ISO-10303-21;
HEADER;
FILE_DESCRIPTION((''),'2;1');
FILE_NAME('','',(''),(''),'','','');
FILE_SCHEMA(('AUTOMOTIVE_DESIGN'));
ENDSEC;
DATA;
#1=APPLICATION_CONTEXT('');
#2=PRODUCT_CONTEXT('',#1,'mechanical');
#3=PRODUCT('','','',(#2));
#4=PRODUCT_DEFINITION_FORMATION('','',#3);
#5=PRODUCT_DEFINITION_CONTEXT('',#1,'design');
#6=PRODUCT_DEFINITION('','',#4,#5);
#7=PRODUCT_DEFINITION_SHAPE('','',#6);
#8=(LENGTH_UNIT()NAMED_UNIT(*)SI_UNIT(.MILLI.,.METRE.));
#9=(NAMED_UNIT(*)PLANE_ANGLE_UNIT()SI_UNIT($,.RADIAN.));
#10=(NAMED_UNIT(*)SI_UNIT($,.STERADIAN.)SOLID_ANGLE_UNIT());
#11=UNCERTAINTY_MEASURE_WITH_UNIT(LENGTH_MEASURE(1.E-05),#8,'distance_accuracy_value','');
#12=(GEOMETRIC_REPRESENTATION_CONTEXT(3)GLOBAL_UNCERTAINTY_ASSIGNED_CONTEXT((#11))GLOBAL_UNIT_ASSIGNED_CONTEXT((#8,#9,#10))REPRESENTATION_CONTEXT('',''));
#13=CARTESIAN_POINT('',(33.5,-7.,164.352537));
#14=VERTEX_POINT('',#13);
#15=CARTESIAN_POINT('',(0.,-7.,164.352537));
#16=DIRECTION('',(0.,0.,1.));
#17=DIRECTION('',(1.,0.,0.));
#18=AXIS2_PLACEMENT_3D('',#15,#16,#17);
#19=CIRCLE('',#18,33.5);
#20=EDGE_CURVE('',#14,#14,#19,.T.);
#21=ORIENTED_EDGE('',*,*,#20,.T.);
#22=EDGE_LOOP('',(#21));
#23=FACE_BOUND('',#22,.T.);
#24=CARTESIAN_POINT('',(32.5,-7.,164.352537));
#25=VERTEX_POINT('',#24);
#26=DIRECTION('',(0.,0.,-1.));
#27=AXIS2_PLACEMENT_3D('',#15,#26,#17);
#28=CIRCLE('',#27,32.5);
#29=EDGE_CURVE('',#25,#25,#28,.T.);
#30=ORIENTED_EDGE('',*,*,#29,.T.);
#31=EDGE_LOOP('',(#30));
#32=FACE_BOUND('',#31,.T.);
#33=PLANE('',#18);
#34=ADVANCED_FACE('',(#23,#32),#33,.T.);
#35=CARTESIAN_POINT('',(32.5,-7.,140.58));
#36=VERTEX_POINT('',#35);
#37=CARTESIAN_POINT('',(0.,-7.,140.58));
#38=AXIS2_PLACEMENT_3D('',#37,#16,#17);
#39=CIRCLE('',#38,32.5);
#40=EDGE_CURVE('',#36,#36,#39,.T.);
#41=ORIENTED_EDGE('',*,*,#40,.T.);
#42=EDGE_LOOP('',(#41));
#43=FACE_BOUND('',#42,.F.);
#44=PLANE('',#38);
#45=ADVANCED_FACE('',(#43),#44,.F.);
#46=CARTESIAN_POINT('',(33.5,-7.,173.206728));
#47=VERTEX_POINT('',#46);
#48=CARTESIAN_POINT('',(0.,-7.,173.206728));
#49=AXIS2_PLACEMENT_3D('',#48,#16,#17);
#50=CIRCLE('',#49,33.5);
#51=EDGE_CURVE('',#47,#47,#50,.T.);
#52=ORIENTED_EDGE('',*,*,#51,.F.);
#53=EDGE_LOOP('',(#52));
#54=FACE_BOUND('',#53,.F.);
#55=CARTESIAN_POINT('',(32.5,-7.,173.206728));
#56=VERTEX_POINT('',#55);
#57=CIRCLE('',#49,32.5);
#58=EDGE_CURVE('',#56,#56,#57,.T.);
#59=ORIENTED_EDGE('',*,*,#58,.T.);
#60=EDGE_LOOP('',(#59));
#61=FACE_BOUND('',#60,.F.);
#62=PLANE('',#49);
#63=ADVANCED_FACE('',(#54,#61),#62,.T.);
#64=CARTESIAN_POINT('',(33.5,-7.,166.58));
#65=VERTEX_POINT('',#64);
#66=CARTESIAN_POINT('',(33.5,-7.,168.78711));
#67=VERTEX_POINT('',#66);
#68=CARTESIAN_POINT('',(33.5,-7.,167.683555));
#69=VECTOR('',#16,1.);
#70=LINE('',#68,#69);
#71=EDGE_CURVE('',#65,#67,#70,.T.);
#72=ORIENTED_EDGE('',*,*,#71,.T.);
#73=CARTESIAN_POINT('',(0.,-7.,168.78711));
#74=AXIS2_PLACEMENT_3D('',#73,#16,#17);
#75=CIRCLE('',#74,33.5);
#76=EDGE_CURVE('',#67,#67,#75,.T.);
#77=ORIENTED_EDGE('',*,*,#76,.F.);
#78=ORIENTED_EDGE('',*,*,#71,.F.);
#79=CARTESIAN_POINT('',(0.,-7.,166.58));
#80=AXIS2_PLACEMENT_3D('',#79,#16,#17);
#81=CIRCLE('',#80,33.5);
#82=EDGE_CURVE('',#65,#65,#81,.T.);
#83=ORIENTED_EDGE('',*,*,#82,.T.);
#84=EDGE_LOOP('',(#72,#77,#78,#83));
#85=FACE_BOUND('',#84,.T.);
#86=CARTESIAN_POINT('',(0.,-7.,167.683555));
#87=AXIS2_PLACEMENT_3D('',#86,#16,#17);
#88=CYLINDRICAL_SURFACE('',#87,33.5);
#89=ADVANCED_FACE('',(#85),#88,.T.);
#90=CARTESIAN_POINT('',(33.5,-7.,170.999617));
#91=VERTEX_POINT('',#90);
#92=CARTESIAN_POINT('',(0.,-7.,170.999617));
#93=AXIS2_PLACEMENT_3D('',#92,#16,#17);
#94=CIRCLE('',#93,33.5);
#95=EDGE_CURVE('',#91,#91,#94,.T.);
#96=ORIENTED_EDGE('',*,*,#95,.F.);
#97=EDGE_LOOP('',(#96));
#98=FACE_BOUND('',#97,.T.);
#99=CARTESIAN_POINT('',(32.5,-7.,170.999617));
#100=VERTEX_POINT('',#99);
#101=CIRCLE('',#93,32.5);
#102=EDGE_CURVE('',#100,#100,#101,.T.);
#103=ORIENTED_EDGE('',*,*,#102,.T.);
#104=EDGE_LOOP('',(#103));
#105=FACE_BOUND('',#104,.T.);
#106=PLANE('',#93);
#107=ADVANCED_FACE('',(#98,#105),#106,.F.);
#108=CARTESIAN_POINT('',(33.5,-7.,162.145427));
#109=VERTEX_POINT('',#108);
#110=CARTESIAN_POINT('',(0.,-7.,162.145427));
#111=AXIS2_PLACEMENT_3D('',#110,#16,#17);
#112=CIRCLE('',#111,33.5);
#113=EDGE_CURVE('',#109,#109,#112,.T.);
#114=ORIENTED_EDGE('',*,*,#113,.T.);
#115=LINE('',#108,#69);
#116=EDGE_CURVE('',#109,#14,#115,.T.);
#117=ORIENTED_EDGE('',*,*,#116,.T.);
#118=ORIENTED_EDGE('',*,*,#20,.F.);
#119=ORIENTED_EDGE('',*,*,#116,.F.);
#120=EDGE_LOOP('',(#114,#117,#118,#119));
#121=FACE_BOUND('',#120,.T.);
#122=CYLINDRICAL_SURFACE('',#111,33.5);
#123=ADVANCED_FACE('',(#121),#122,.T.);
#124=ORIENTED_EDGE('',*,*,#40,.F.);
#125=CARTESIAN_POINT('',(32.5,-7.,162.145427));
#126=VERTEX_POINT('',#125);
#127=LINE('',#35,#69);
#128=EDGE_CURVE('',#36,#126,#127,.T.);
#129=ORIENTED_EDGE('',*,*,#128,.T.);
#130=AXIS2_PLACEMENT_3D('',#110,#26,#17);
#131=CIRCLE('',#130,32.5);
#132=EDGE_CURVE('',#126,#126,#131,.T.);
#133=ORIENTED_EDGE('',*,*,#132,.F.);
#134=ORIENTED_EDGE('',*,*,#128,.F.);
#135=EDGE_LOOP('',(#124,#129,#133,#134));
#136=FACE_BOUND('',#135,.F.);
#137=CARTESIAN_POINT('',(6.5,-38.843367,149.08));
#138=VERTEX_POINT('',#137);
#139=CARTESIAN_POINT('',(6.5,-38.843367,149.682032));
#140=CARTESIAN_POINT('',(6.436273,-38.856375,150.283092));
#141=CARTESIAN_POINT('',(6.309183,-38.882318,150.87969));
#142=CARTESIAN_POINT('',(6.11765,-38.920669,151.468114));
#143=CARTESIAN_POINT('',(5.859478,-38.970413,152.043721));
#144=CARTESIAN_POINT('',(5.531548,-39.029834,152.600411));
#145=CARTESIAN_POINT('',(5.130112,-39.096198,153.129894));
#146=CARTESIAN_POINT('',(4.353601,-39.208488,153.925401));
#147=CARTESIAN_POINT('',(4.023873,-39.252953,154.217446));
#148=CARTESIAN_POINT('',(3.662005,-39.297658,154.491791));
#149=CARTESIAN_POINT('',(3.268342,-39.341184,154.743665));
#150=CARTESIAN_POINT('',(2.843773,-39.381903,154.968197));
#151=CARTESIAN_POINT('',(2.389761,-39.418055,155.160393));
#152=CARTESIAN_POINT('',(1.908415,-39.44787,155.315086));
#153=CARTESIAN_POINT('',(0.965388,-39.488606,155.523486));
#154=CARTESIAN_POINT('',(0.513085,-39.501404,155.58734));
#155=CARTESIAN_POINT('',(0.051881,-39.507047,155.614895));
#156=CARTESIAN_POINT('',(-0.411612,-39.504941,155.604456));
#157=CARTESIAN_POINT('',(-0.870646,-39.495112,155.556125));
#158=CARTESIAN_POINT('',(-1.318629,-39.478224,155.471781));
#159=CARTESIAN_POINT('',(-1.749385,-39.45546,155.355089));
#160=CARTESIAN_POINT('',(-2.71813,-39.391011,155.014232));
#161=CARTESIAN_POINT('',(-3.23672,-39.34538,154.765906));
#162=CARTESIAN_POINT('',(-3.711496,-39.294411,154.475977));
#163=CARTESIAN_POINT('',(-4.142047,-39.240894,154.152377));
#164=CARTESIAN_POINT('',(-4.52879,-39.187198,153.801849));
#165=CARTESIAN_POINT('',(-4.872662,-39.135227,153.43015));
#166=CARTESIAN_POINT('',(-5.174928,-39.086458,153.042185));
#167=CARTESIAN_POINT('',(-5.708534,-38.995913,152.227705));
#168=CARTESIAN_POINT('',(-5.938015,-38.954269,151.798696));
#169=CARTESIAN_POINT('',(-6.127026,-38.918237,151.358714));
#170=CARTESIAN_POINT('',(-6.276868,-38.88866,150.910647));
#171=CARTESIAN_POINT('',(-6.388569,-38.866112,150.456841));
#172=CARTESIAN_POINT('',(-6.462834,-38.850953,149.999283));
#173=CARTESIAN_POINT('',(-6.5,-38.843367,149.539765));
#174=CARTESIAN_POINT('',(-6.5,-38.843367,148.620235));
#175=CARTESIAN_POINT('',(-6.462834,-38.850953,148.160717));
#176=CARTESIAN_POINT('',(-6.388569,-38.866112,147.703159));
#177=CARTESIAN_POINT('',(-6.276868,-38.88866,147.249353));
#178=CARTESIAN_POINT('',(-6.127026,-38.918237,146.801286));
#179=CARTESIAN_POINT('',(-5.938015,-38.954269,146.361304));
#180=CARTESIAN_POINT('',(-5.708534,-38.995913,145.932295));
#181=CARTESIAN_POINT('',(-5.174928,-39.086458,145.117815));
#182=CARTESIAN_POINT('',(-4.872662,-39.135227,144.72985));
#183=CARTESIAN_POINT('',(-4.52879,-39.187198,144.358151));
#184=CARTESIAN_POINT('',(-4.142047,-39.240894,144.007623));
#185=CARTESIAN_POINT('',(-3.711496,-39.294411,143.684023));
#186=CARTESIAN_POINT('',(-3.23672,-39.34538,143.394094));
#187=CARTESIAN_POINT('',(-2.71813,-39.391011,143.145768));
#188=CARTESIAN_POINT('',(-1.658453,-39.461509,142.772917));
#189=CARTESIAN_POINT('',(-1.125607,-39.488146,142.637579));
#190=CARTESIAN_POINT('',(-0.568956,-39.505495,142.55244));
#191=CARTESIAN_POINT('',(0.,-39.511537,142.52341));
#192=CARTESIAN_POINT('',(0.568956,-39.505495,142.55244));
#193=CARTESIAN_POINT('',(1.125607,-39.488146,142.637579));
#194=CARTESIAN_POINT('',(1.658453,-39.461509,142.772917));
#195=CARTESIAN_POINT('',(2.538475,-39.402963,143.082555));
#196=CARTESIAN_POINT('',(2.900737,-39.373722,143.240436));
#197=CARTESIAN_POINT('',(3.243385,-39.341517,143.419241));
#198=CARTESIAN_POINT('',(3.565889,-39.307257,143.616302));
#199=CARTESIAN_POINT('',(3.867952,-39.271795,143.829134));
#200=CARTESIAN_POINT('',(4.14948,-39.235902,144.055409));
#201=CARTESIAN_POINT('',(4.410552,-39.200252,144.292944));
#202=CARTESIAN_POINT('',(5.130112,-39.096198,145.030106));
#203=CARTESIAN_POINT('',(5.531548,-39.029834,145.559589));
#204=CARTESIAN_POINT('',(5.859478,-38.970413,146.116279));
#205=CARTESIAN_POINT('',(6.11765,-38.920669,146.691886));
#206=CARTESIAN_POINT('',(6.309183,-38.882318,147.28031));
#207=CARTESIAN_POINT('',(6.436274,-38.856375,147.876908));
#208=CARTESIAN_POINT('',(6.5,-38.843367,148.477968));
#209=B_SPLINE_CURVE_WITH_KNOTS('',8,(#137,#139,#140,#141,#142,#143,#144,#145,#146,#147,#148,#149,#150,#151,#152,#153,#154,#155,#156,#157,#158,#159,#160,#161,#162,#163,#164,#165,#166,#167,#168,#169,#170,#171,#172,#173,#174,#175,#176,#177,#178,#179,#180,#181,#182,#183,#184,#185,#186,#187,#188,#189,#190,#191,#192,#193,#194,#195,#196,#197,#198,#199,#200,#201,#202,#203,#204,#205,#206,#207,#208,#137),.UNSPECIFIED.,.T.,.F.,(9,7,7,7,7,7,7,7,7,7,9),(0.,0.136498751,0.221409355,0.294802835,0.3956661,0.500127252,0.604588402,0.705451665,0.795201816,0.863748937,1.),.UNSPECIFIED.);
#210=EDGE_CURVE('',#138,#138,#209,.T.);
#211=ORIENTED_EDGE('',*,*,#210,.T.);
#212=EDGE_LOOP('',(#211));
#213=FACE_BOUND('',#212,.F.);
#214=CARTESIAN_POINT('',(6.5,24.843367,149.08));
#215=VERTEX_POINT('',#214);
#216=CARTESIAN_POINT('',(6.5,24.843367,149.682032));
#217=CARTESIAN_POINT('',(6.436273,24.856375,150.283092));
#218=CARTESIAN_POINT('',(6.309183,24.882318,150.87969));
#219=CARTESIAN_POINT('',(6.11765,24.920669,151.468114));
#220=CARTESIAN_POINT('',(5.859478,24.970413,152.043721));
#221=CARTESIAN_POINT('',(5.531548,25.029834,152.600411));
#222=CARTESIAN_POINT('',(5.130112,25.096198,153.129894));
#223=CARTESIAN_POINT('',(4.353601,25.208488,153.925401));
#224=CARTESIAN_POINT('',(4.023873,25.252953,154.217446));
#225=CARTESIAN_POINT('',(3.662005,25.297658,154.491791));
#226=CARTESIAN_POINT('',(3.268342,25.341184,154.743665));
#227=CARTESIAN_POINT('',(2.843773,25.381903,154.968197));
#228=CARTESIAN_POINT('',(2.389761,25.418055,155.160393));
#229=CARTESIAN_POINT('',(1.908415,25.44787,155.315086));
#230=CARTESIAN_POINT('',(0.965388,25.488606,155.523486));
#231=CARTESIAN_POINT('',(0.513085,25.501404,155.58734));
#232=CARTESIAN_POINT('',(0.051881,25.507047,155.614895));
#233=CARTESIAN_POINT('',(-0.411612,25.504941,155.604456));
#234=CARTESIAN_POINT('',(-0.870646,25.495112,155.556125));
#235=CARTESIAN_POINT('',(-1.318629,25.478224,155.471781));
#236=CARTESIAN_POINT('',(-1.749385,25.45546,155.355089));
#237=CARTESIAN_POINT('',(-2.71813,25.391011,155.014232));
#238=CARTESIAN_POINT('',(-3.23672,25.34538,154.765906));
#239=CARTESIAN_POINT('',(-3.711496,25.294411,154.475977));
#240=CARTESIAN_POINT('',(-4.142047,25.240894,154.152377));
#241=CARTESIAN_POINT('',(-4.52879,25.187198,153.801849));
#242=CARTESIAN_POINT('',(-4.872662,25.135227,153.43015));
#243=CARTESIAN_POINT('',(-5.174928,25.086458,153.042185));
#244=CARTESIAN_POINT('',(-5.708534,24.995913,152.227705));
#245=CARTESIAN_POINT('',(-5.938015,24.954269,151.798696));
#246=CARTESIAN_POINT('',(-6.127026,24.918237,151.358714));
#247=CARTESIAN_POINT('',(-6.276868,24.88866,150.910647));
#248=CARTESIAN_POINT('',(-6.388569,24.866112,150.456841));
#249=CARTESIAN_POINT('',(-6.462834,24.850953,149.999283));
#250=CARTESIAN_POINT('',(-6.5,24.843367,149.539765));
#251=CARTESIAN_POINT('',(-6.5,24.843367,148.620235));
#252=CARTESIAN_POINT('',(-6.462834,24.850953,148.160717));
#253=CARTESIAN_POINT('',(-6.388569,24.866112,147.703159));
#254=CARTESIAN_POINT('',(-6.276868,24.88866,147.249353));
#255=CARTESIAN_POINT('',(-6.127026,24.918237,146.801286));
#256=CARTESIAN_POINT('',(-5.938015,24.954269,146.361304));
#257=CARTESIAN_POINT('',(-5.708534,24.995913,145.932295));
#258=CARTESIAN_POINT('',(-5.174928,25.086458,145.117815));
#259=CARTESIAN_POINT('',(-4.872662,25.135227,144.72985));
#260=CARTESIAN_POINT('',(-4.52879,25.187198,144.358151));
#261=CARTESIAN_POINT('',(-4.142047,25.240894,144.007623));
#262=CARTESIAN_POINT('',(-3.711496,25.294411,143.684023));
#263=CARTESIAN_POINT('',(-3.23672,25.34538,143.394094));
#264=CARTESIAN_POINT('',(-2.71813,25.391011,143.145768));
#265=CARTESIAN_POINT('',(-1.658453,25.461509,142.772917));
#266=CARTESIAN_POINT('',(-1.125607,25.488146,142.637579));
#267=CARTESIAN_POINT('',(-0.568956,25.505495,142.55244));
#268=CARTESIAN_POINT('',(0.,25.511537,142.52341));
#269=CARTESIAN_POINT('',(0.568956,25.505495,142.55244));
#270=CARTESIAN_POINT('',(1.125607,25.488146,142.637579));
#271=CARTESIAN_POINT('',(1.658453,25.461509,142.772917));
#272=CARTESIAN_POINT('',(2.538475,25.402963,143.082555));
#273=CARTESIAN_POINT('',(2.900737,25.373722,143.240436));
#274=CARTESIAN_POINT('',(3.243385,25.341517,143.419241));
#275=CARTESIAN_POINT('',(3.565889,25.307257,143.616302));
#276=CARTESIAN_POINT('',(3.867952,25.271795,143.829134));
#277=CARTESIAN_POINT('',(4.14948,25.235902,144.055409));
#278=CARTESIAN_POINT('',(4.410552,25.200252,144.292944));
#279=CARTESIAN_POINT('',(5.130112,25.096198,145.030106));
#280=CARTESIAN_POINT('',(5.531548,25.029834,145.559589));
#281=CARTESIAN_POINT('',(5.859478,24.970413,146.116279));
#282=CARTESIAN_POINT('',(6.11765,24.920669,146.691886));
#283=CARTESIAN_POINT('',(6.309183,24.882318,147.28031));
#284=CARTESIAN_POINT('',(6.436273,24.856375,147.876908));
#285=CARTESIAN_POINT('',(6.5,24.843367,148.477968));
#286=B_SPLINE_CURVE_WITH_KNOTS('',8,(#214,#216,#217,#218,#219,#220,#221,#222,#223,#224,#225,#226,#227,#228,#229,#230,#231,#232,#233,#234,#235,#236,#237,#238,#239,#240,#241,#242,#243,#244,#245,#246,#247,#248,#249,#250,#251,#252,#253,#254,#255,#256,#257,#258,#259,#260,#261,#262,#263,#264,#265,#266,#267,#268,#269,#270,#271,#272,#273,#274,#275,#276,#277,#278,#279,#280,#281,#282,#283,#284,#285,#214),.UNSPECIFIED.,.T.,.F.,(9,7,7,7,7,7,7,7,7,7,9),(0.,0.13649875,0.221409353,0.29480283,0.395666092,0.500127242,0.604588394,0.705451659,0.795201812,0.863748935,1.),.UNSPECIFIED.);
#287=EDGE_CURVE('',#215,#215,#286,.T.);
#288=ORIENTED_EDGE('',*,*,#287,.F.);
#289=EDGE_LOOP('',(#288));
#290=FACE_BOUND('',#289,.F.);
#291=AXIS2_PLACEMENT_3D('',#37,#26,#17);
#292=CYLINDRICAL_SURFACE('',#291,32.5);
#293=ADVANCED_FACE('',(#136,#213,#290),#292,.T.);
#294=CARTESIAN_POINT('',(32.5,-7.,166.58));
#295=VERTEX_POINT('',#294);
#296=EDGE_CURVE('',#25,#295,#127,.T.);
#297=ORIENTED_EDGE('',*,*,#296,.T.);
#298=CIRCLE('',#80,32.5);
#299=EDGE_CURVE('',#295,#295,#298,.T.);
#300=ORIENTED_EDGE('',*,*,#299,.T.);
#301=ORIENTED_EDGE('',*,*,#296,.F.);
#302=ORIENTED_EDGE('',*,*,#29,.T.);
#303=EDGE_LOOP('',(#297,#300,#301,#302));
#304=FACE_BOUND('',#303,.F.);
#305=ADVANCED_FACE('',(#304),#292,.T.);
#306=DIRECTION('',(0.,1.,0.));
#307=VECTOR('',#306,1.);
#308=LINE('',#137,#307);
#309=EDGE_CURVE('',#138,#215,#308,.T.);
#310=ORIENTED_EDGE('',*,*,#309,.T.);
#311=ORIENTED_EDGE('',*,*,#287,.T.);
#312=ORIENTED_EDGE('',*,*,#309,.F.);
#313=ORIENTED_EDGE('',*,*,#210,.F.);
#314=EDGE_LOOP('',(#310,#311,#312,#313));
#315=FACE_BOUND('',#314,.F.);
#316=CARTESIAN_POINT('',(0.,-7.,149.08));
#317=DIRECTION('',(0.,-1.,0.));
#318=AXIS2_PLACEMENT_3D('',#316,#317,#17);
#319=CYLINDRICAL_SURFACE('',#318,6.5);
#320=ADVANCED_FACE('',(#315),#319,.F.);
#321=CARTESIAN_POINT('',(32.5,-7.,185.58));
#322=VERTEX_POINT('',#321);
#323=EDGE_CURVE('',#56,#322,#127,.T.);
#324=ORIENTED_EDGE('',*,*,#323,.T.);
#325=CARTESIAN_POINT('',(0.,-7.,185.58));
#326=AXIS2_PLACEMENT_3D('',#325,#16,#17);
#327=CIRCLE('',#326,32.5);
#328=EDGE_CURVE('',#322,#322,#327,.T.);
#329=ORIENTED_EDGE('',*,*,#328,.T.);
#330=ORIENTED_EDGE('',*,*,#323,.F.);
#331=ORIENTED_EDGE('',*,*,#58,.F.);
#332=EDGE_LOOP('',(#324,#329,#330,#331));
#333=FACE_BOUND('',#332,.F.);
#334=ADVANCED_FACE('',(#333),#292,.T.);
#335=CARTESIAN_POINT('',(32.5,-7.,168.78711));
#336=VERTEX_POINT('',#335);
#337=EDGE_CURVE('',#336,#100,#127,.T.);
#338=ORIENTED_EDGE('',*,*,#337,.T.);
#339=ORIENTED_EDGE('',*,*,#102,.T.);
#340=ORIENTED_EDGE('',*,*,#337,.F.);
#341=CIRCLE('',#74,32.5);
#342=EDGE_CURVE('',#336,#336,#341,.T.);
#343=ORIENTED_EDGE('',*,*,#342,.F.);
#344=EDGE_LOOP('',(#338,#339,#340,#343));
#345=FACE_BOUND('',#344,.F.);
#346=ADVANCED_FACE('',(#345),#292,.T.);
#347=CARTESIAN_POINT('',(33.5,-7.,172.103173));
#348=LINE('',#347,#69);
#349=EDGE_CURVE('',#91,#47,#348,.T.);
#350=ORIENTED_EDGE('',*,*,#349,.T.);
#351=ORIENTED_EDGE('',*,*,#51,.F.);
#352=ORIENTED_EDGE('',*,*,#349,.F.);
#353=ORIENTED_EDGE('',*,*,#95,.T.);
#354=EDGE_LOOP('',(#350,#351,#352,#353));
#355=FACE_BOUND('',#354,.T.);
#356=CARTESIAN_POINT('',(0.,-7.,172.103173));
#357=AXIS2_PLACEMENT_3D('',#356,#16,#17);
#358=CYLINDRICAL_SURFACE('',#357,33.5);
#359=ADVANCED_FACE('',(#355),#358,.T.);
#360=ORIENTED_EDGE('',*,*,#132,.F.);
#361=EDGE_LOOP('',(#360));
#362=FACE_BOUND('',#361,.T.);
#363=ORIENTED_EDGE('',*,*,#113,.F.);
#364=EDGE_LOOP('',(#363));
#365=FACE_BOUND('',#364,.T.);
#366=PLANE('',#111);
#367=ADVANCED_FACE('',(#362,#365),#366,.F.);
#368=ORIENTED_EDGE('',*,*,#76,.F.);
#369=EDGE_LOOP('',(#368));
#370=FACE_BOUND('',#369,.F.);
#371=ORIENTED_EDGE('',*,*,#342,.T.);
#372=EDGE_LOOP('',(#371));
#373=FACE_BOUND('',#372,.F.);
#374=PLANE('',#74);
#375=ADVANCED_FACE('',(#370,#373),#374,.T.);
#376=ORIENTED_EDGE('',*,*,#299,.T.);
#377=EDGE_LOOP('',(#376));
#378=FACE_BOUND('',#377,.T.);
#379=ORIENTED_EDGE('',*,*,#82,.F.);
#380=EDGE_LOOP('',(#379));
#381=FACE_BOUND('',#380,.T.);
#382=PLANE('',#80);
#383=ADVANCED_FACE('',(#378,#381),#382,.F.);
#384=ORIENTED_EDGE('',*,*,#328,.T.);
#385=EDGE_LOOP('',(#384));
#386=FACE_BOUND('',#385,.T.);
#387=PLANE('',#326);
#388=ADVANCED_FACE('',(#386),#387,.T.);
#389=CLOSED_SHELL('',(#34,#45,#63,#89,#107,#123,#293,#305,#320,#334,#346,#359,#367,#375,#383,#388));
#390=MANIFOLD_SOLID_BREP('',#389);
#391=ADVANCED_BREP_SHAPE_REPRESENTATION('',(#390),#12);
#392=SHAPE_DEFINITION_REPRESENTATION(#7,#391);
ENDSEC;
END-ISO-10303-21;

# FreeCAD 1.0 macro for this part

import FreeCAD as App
import Part
import Sketcher
from FreeCAD import Vector
Q = App.Units.Quantity


def add_polygon(sketch, points):
    """Adds a closed chain of lines whose ends are joined by coincident constraints."""
    first, n = sketch.GeometryCount, len(points)
    for a, b in zip(points, points[1:] + points[:1]):
        sketch.addGeometry(Part.LineSegment(App.Vector(*a, 0), App.Vector(*b, 0)), False)
    for i in range(n):
        sketch.addConstraint(Sketcher.Constraint("Coincident", first + i, 2, first + (i + 1) % n, 1))

doc = App.newDocument("Part")
body = doc.addObject("PartDesign::Body", "Body")

# Sketch on XY plane
sketch1 = doc.addObject("Sketcher::SketchObject", "Sketch")
body.addObject(sketch1)
sketch1.AttachmentSupport = (doc.XY_Plane, [""])
sketch1.MapMode = "FlatFace"
sketch1.addGeometry(Part.Circle(Vector(0, 0, 0), Vector(0, 0, 1), 32), False)
sketch1.addConstraint(Sketcher.Constraint("Coincident", 0, 3, -1, 1))
sketch1.addConstraint(Sketcher.Constraint("Diameter", 0, Q("65 mm")))
pad1 = doc.addObject("PartDesign::Pad", "Pad")
body.addObject(pad1)
pad1.Profile = sketch1
pad1.Length = 45

# Sketch on XZ plane
sketch2 = doc.addObject("Sketcher::SketchObject", "Sketch001")
body.addObject(sketch2)
sketch2.AttachmentSupport = (doc.XZ_Plane, [""])
sketch2.MapMode = "FlatFace"
sketch2.addGeometry(Part.Circle(Vector(0, 8, 0), Vector(0, 0, 1), 6), False)
sketch2.addConstraint(Sketcher.Constraint("PointOnObject", 0, 3, -2))
sketch2.addConstraint(Sketcher.Constraint("Diameter", 0, Q("13 mm")))
sketch2.addConstraint(Sketcher.Constraint("DistanceY", -1, 1, 0, 3, Q("8.5 mm")))
pocket1 = doc.addObject("PartDesign::Pocket", "Pocket")
body.addObject(pocket1)
pocket1.Profile = sketch2
pocket1.Type = "ThroughAll"
pocket1.Midplane = True

# Sketch on XZ plane
sketch3 = doc.addObject("Sketcher::SketchObject", "Sketch002")
body.addObject(sketch3)
sketch3.AttachmentSupport = (doc.XZ_Plane, [""])
sketch3.MapMode = "FlatFace"
add_polygon(sketch3, [(32.5, 21.6), (33.5, 21.6), (33.5, 23.8), (32.5, 23.8)])  # lines 0-3
add_polygon(sketch3, [(32.5, 28.2), (32.5, 26), (33.5, 26), (33.5, 28.2)])  # lines 4-7
add_polygon(sketch3, [(32.5, 32.6), (32.5, 30.4), (33.5, 30.4), (33.5, 32.6)])  # lines 8-11
sketch3.addConstraint(Sketcher.Constraint("Horizontal", 0))
sketch3.addConstraint(Sketcher.Constraint("Vertical", 1))
sketch3.addConstraint(Sketcher.Constraint("Horizontal", 2))
sketch3.addConstraint(Sketcher.Constraint("Vertical", 4))
sketch3.addConstraint(Sketcher.Constraint("Horizontal", 5))
sketch3.addConstraint(Sketcher.Constraint("Vertical", 6))
sketch3.addConstraint(Sketcher.Constraint("Horizontal", 7))
sketch3.addConstraint(Sketcher.Constraint("Vertical", 8))
sketch3.addConstraint(Sketcher.Constraint("Horizontal", 9))
sketch3.addConstraint(Sketcher.Constraint("Vertical", 10))
sketch3.addConstraint(Sketcher.Constraint("Horizontal", 11))
sketch3.addConstraint(Sketcher.Constraint("Vertical", 1, 2, 5, 2))
sketch3.addConstraint(Sketcher.Constraint("Vertical", 7, 2, 8, 2))
sketch3.addConstraint(Sketcher.Constraint("Vertical", 6, 2, 9, 2))
sketch3.addConstraint(Sketcher.Constraint("Equal", 1, 4))
sketch3.addConstraint(Sketcher.Constraint("Equal", 6, 8))
sketch3.addConstraint(Sketcher.Constraint("DistanceX", 5, 1, 5, 2, Q("1 mm")))
sketch3.addConstraint(Sketcher.Constraint("DistanceY", -1, 1, 4, 2, Q("26 mm")))
sketch3.addConstraint(Sketcher.Constraint("DistanceX", -1, 1, 0, 2, Q("33.5 mm")))
sketch3.addConstraint(Sketcher.Constraint("DistanceY", 1, 1, 1, 2, Q("2.20711 mm")))
sketch3.addConstraint(Sketcher.Constraint("DistanceX", 0, 1, 0, 2, Q("1.007984 mm")))
sketch3.addConstraint(Sketcher.Constraint("DistanceX", 2, 2, 2, 1, Q("1.012627 mm")))
sketch3.addConstraint(Sketcher.Constraint("DistanceY", -1, 1, 10, 2, Q("32.626728 mm")))
sketch3.addConstraint(Sketcher.Constraint("DistanceY", 2, 2, 8, 2, Q("6.647081 mm")))
revolution = doc.addObject("PartDesign::Revolution", "Revolution")
body.addObject(revolution)
revolution.Profile = sketch3
revolution.ReferenceAxis = (sketch3, ["V_Axis"])
revolution.Angle = 360
body2 = doc.addObject("PartDesign::Body", "Body001")
doc.recompute()

body.Placement = App.Placement(Vector(0, -7, 140.58), App.Rotation(Vector(0, 0, 1), 0))
boolean = doc.addObject("PartDesign::Boolean", "Boolean")
body2.addObject(boolean)
boolean.Type = "Fuse"
boolean.addObjects([body])

doc.recompute()
